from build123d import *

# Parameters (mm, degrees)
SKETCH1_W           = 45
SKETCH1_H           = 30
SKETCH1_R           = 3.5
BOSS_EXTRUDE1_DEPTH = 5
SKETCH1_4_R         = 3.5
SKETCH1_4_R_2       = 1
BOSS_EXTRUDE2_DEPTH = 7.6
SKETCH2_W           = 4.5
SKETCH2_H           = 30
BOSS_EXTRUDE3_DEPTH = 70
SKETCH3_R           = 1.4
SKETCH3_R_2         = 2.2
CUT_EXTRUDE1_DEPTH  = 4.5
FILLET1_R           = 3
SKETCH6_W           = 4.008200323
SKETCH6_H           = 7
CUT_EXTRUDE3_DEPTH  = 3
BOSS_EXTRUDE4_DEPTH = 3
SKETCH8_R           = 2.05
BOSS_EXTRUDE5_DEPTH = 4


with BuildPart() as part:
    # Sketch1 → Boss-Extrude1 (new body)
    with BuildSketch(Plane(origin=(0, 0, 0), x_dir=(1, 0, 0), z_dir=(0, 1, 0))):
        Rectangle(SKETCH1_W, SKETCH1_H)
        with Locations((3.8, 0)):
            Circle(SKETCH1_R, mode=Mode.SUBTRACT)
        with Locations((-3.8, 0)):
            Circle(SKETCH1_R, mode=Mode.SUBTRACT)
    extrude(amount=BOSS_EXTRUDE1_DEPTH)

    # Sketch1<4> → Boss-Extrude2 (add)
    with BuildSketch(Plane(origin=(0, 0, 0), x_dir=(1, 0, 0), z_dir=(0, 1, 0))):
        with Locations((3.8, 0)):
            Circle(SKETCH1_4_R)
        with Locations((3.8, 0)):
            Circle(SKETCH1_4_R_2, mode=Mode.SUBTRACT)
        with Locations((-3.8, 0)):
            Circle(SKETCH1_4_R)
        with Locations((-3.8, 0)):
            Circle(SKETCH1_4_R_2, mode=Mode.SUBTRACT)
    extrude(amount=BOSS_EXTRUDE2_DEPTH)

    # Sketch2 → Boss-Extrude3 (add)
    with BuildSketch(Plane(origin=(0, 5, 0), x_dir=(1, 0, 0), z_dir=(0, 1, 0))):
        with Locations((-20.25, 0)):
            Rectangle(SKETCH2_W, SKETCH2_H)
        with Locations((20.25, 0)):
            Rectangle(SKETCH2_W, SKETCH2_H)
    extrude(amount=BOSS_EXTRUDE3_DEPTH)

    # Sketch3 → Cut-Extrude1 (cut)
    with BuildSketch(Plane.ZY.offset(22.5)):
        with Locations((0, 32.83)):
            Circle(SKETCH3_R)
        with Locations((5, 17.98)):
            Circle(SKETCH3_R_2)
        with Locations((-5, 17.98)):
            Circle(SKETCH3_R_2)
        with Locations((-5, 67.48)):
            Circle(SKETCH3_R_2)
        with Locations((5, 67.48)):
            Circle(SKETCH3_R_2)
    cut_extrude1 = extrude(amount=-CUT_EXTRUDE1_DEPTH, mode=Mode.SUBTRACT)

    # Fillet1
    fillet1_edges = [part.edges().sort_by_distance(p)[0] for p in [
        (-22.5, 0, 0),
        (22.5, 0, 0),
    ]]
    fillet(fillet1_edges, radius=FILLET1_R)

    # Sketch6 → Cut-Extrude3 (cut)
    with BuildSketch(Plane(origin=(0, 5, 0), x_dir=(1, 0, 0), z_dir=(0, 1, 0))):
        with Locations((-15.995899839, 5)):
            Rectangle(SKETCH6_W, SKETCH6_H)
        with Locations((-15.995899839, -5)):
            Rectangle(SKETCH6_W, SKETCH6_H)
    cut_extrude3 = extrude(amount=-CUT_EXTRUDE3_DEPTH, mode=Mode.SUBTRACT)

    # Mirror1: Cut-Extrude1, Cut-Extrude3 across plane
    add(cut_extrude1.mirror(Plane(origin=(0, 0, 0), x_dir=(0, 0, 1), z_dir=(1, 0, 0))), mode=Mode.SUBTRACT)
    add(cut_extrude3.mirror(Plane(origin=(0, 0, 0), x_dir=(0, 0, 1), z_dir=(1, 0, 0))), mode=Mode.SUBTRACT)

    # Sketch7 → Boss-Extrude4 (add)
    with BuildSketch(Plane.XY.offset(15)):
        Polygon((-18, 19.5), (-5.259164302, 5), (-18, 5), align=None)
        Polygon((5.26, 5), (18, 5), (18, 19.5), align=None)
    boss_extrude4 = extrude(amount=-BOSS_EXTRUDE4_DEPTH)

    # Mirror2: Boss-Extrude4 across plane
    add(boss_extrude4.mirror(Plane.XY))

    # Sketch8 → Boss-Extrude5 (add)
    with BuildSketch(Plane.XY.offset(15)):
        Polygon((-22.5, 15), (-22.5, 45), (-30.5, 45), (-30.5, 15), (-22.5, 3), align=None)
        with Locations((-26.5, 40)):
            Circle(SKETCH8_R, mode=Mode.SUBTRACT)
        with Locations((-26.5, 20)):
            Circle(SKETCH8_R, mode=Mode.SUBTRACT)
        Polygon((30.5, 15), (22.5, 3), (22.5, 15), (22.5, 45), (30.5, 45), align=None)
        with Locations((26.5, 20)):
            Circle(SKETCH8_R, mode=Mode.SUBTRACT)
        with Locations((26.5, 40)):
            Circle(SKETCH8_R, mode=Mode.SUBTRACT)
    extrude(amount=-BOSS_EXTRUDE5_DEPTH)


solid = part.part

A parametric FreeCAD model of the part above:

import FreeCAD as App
import Part
import Sketcher


def edges_at(feature, points):
    """Names of the edges that pass closest to the given points."""
    edges = feature.Shape.Edges
    near = lambda p: min(range(len(edges)), key=lambda i: edges[i].distToShape(Part.Vertex(*p))[0])
    return sorted({f"Edge{near(p) + 1}" for p in points})

doc = App.newDocument("Part")
params = doc.addObject("Spreadsheet::Sheet", "Params")
for row, (alias, value) in enumerate([
    ("sketch1_diameter", "7 mm"),
    ("sketch1_width", "45 mm"),
    ("sketch1_height", "30 mm"),
    ("pad1_length", "5 mm"),
    ("sketch2_diameter", "7 mm"),
    ("sketch2_diameter2", "2 mm"),
    ("pad2_length", "7.6 mm"),
    ("sketch3_height", "30 mm"),
    ("sketch3_width", "4.5 mm"),
    ("pad3_length", "70 mm"),
    ("sketch4_diameter", "2.8 mm"),
    ("sketch4_diameter2", "4.4 mm"),
    ("pocket1_length", "4.5 mm"),
    ("fillet_radius", "3 mm"),
    ("sketch5_height", "7 mm"),
    ("pocket2_length", "3 mm"),
    ("sketch6_height", "14.5 mm"),
    ("sketch6_width", "12.74 mm"),
    ("pad4_length", "3 mm"),
    ("sketch7_diameter", "4.1 mm"),
    ("sketch7_width", "8 mm"),
    ("sketch7_height", "30 mm"),
    ("sketch7_height2", "42 mm"),
    ("pad5_length", "4 mm"),
], start=1):
    params.set(f"A{row}", alias)
    params.set(f"B{row}", "=" + value)
    params.setAlias(f"B{row}", alias)

body = doc.addObject("PartDesign::Body", "Body")

# Sketch on XZ plane
sketch1 = doc.addObject("Sketcher::SketchObject", "Sketch")
body.addObject(sketch1)
sketch1.AttachmentSupport = (doc.XZ_Plane, [""])
sketch1.MapMode = "FlatFace"
sketch1.addGeometry(Part.LineSegment(App.Vector(-22.5, -15, 0), App.Vector(-22.5, 15, 0)), False)
sketch1.addGeometry(Part.LineSegment(App.Vector(-22.5, 15, 0), App.Vector(22.5, 15, 0)), False)
sketch1.addGeometry(Part.LineSegment(App.Vector(22.5, 15, 0), App.Vector(22.5, -15, 0)), False)
sketch1.addGeometry(Part.LineSegment(App.Vector(22.5, -15, 0), App.Vector(-22.5, -15, 0)), False)
sketch1.addGeometry(Part.Circle(App.Vector(-3.8, 0, 0), App.Vector(0, 0, 1), 3.5), False)
sketch1.addGeometry(Part.Circle(App.Vector(3.8, 0, 0), App.Vector(0, 0, 1), 3.5), False)
sketch1.addConstraint(Sketcher.Constraint("Coincident", 0, 2, 1, 1))
sketch1.addConstraint(Sketcher.Constraint("Coincident", 1, 2, 2, 1))
sketch1.addConstraint(Sketcher.Constraint("Coincident", 2, 2, 3, 1))
sketch1.addConstraint(Sketcher.Constraint("Coincident", 3, 2, 0, 1))
sketch1.addConstraint(Sketcher.Constraint("Vertical", 0))
sketch1.addConstraint(Sketcher.Constraint("Horizontal", 1))
sketch1.addConstraint(Sketcher.Constraint("Vertical", 2))
sketch1.addConstraint(Sketcher.Constraint("Horizontal", 3))
sketch1.addConstraint(Sketcher.Constraint("Equal", 4, 5))
sketch1.addConstraint(Sketcher.Constraint("Symmetric", 4, 3, 5, 3, -1, 1))
sketch1.addConstraint(Sketcher.Constraint("Symmetric", 0, 2, 2, 2, -1, 1))
sketch1.addConstraint(Sketcher.Constraint("PointOnObject", 4, 3, -1))
sketch1.addConstraint(Sketcher.Constraint("Diameter", 4, 7.0))
sketch1.addConstraint(Sketcher.Constraint("DistanceX", 1, 1, 1, 2, 45.0))
sketch1.addConstraint(Sketcher.Constraint("DistanceY", 0, 1, 0, 2, 30.0))
sketch1.addConstraint(Sketcher.Constraint("DistanceX", 4, 3, -1, 1, 3.8))
sketch1.setExpression("Constraints[12]", "Params.sketch1_diameter")
sketch1.setExpression("Constraints[13]", "Params.sketch1_width")
sketch1.setExpression("Constraints[14]", "Params.sketch1_height")
pad1 = doc.addObject("PartDesign::Pad", "Pad")
body.addObject(pad1)
pad1.Profile = sketch1
pad1.setExpression("Length", "Params.pad1_length")
pad1.Reversed = True

# Sketch on XZ plane
sketch2 = doc.addObject("Sketcher::SketchObject", "Sketch001")
body.addObject(sketch2)
sketch2.AttachmentSupport = (doc.XZ_Plane, [""])
sketch2.MapMode = "FlatFace"
sketch2.addGeometry(Part.Circle(App.Vector(3.8, 0, 0), App.Vector(0, 0, 1), 3.5), False)
sketch2.addGeometry(Part.Circle(App.Vector(3.8, 0, 0), App.Vector(0, 0, 1), 1), False)
sketch2.addGeometry(Part.Circle(App.Vector(-3.8, 0, 0), App.Vector(0, 0, 1), 3.5), False)
sketch2.addGeometry(Part.Circle(App.Vector(-3.8, 0, 0), App.Vector(0, 0, 1), 1), False)
sketch2.addConstraint(Sketcher.Constraint("Coincident", 1, 3, 0, 3))
sketch2.addConstraint(Sketcher.Constraint("Coincident", 3, 3, 2, 3))
sketch2.addConstraint(Sketcher.Constraint("Equal", 0, 2))
sketch2.addConstraint(Sketcher.Constraint("Equal", 1, 3))
sketch2.addConstraint(Sketcher.Constraint("Symmetric", 0, 3, 2, 3, -1, 1))
sketch2.addConstraint(Sketcher.Constraint("PointOnObject", 0, 3, -1))
sketch2.addConstraint(Sketcher.Constraint("Diameter", 0, 7.0))
sketch2.addConstraint(Sketcher.Constraint("Diameter", 1, 2.0))
sketch2.addConstraint(Sketcher.Constraint("DistanceX", -1, 1, 0, 3, 3.8))
sketch2.setExpression("Constraints[6]", "Params.sketch2_diameter")
sketch2.setExpression("Constraints[7]", "Params.sketch2_diameter2")
pad2 = doc.addObject("PartDesign::Pad", "Pad001")
body.addObject(pad2)
pad2.Profile = sketch2
pad2.setExpression("Length", "Params.pad2_length")
pad2.Reversed = True

# Sketch on XZ plane
sketch3 = doc.addObject("Sketcher::SketchObject", "Sketch002")
body.addObject(sketch3)
sketch3.AttachmentSupport = (doc.XZ_Plane, [""])
sketch3.MapMode = "FlatFace"
sketch3.AttachmentOffset = App.Placement(App.Vector(0, 0, -5), App.Rotation())
sketch3.addGeometry(Part.LineSegment(App.Vector(-22.5, -15, 0), App.Vector(-22.5, 15, 0)), False)
sketch3.addGeometry(Part.LineSegment(App.Vector(-22.5, 15, 0), App.Vector(-18, 15, 0)), False)
sketch3.addGeometry(Part.LineSegment(App.Vector(-18, 15, 0), App.Vector(-18, -15, 0)), False)
sketch3.addGeometry(Part.LineSegment(App.Vector(-18, -15, 0), App.Vector(-22.5, -15, 0)), False)
sketch3.addGeometry(Part.LineSegment(App.Vector(18, -15, 0), App.Vector(18, 15, 0)), False)
sketch3.addGeometry(Part.LineSegment(App.Vector(18, 15, 0), App.Vector(22.5, 15, 0)), False)
sketch3.addGeometry(Part.LineSegment(App.Vector(22.5, 15, 0), App.Vector(22.5, -15, 0)), False)
sketch3.addGeometry(Part.LineSegment(App.Vector(22.5, -15, 0), App.Vector(18, -15, 0)), False)
sketch3.addConstraint(Sketcher.Constraint("Coincident", 0, 2, 1, 1))
sketch3.addConstraint(Sketcher.Constraint("Coincident", 1, 2, 2, 1))
sketch3.addConstraint(Sketcher.Constraint("Coincident", 2, 2, 3, 1))
sketch3.addConstraint(Sketcher.Constraint("Coincident", 3, 2, 0, 1))
sketch3.addConstraint(Sketcher.Constraint("Coincident", 4, 2, 5, 1))
sketch3.addConstraint(Sketcher.Constraint("Coincident", 5, 2, 6, 1))
sketch3.addConstraint(Sketcher.Constraint("Coincident", 6, 2, 7, 1))
sketch3.addConstraint(Sketcher.Constraint("Coincident", 7, 2, 4, 1))
sketch3.addConstraint(Sketcher.Constraint("Vertical", 0))
sketch3.addConstraint(Sketcher.Constraint("Horizontal", 1))
sketch3.addConstraint(Sketcher.Constraint("Vertical", 2))
sketch3.addConstraint(Sketcher.Constraint("Horizontal", 3))
sketch3.addConstraint(Sketcher.Constraint("Vertical", 4))
sketch3.addConstraint(Sketcher.Constraint("Horizontal", 5))
sketch3.addConstraint(Sketcher.Constraint("Vertical", 6))
sketch3.addConstraint(Sketcher.Constraint("Horizontal", 7))
sketch3.addConstraint(Sketcher.Constraint("Symmetric", 2, 2, 4, 2, -1, 1))
sketch3.addConstraint(Sketcher.Constraint("Symmetric", 0, 2, 6, 2, -1, 1))
sketch3.addConstraint(Sketcher.Constraint("Horizontal", 1, 2, 4, 2))
sketch3.addConstraint(Sketcher.Constraint("DistanceY", 0, 1, 0, 2, 30.0))
sketch3.addConstraint(Sketcher.Constraint("DistanceX", 1, 1, 1, 2, 4.5))
sketch3.addConstraint(Sketcher.Constraint("DistanceX", 1, 2, -1, 1, 18.0))
sketch3.setExpression("Constraints[19]", "Params.sketch3_height")
sketch3.setExpression("Constraints[20]", "Params.sketch3_width")
pad3 = doc.addObject("PartDesign::Pad", "Pad002")
body.addObject(pad3)
pad3.Profile = sketch3
pad3.setExpression("Length", "Params.pad3_length")
pad3.Reversed = True

# Sketch on YZ plane
sketch4 = doc.addObject("Sketcher::SketchObject", "Sketch003")
body.addObject(sketch4)
sketch4.AttachmentSupport = (doc.YZ_Plane, [""])
sketch4.MapMode = "FlatFace"
sketch4.AttachmentOffset = App.Placement(App.Vector(0, 0, -22.5), App.Rotation())
sketch4.addGeometry(Part.Circle(App.Vector(32.8, 0, 0), App.Vector(0, 0, 1), 1.4), False)
sketch4.addGeometry(Part.Circle(App.Vector(18, 5, 0), App.Vector(0, 0, 1), 2.2), False)
sketch4.addGeometry(Part.Circle(App.Vector(18, -5, 0), App.Vector(0, 0, 1), 2.2), False)
sketch4.addGeometry(Part.Circle(App.Vector(67.5, -5, 0), App.Vector(0, 0, 1), 2.2), False)
sketch4.addGeometry(Part.Circle(App.Vector(67.5, 5, 0), App.Vector(0, 0, 1), 2.2), False)
sketch4.addConstraint(Sketcher.Constraint("Equal", 1, 2))
sketch4.addConstraint(Sketcher.Constraint("Equal", 2, 3))
sketch4.addConstraint(Sketcher.Constraint("Equal", 3, 4))
sketch4.addConstraint(Sketcher.Constraint("Symmetric", 1, 3, 2, 3, -1))
sketch4.addConstraint(Sketcher.Constraint("Symmetric", 3, 3, 4, 3, -1))
sketch4.addConstraint(Sketcher.Constraint("PointOnObject", 0, 3, -1))
sketch4.addConstraint(Sketcher.Constraint("Horizontal", 2, 3, 3, 3))
sketch4.addConstraint(Sketcher.Constraint("Diameter", 0, 2.8))
sketch4.addConstraint(Sketcher.Constraint("Diameter", 1, 4.4))
sketch4.addConstraint(Sketcher.Constraint("DistanceY", -1, 1, 1, 3, 5.0))
sketch4.addConstraint(Sketcher.Constraint("DistanceX", 2, 3, 3, 3, 49.5))
sketch4.addConstraint(Sketcher.Constraint("DistanceX", -1, 1, 0, 3, 32.83))
sketch4.addConstraint(Sketcher.Constraint("DistanceX", -1, 1, 1, 3, 17.98))
sketch4.setExpression("Constraints[7]", "Params.sketch4_diameter")
sketch4.setExpression("Constraints[8]", "Params.sketch4_diameter2")
pocket1 = doc.addObject("PartDesign::Pocket", "Pocket")
body.addObject(pocket1)
pocket1.Profile = sketch4
pocket1.setExpression("Length", "Params.pocket1_length")
pocket1.Reversed = True
doc.recompute()

fillet = doc.addObject("PartDesign::Fillet", "Fillet")
body.addObject(fillet)
fillet.Base = (pocket1, edges_at(pocket1, [(-22.5, 0, 0), (22.5, 0, 0)]))
fillet.setExpression("Radius", "Params.fillet_radius")

# Sketch on XZ plane
sketch5 = doc.addObject("Sketcher::SketchObject", "Sketch004")
body.addObject(sketch5)
sketch5.AttachmentSupport = (doc.XZ_Plane, [""])
sketch5.MapMode = "FlatFace"
sketch5.AttachmentOffset = App.Placement(App.Vector(0, 0, -5), App.Rotation())
sketch5.addGeometry(Part.LineSegment(App.Vector(-18, -8.5, 0), App.Vector(-18, -1.5, 0)), False)
sketch5.addGeometry(Part.LineSegment(App.Vector(-18, -1.5, 0), App.Vector(-14, -1.5, 0)), False)
sketch5.addGeometry(Part.LineSegment(App.Vector(-14, -1.5, 0), App.Vector(-14, -8.5, 0)), False)
sketch5.addGeometry(Part.LineSegment(App.Vector(-14, -8.5, 0), App.Vector(-18, -8.5, 0)), False)
sketch5.addGeometry(Part.LineSegment(App.Vector(-18, 1.5, 0), App.Vector(-18, 8.5, 0)), False)
sketch5.addGeometry(Part.LineSegment(App.Vector(-18, 8.5, 0), App.Vector(-14, 8.5, 0)), False)
sketch5.addGeometry(Part.LineSegment(App.Vector(-14, 8.5, 0), App.Vector(-14, 1.5, 0)), False)
sketch5.addGeometry(Part.LineSegment(App.Vector(-14, 1.5, 0), App.Vector(-18, 1.5, 0)), False)
sketch5.addConstraint(Sketcher.Constraint("Coincident", 0, 2, 1, 1))
sketch5.addConstraint(Sketcher.Constraint("Coincident", 1, 2, 2, 1))
sketch5.addConstraint(Sketcher.Constraint("Coincident", 2, 2, 3, 1))
sketch5.addConstraint(Sketcher.Constraint("Coincident", 3, 2, 0, 1))
sketch5.addConstraint(Sketcher.Constraint("Coincident", 4, 2, 5, 1))
sketch5.addConstraint(Sketcher.Constraint("Coincident", 5, 2, 6, 1))
sketch5.addConstraint(Sketcher.Constraint("Coincident", 6, 2, 7, 1))
sketch5.addConstraint(Sketcher.Constraint("Coincident", 7, 2, 4, 1))
sketch5.addConstraint(Sketcher.Constraint("Vertical", 0))
sketch5.addConstraint(Sketcher.Constraint("Horizontal", 1))
sketch5.addConstraint(Sketcher.Constraint("Vertical", 2))
sketch5.addConstraint(Sketcher.Constraint("Horizontal", 3))
sketch5.addConstraint(Sketcher.Constraint("Vertical", 4))
sketch5.addConstraint(Sketcher.Constraint("Horizontal", 5))
sketch5.addConstraint(Sketcher.Constraint("Vertical", 6))
sketch5.addConstraint(Sketcher.Constraint("Horizontal", 7))
sketch5.addConstraint(Sketcher.Constraint("Symmetric", 3, 2, 4, 2, -1))
sketch5.addConstraint(Sketcher.Constraint("Symmetric", 1, 2, 6, 2, -1))
sketch5.addConstraint(Sketcher.Constraint("DistanceY", 0, 1, 0, 2, 7.0))
sketch5.addConstraint(Sketcher.Constraint("DistanceX", 0, 2, -1, 1, 18.0))
sketch5.addConstraint(Sketcher.Constraint("DistanceY", 0, 2, 4, 2, 10.0))
sketch5.addConstraint(Sketcher.Constraint("DistanceX", 1, 1, 1, 2, 4.0082))
sketch5.setExpression("Constraints[18]", "Params.sketch5_height")
pocket2 = doc.addObject("PartDesign::Pocket", "Pocket001")
body.addObject(pocket2)
pocket2.Profile = sketch5
pocket2.setExpression("Length", "Params.pocket2_length")
pocket2.Reversed = True
doc.recompute()

mirrored = doc.addObject("PartDesign::Mirrored", "Mirrored")
body.addObject(mirrored)
mirrored.Originals = [pocket1, pocket2]
mirrored.MirrorPlane = (doc.YZ_Plane, [""])
body.Tip = mirrored

# Sketch on XY plane
sketch6 = doc.addObject("Sketcher::SketchObject", "Sketch005")
body.addObject(sketch6)
sketch6.AttachmentSupport = (doc.XY_Plane, [""])
sketch6.MapMode = "FlatFace"
sketch6.AttachmentOffset = App.Placement(App.Vector(0, 0, 15), App.Rotation())
sketch6.addGeometry(Part.LineSegment(App.Vector(-5, 5, 0), App.Vector(-18, 20, 0)), False)
sketch6.addGeometry(Part.LineSegment(App.Vector(-18, 20, 0), App.Vector(-18, 5, 0)), False)
sketch6.addGeometry(Part.LineSegment(App.Vector(-18, 5, 0), App.Vector(-5, 5, 0)), False)
sketch6.addGeometry(Part.LineSegment(App.Vector(5, 5, 0), App.Vector(18, 5, 0)), False)
sketch6.addGeometry(Part.LineSegment(App.Vector(18, 5, 0), App.Vector(18, 20, 0)), False)
sketch6.addGeometry(Part.LineSegment(App.Vector(18, 20, 0), App.Vector(5, 5, 0)), False)
sketch6.addConstraint(Sketcher.Constraint("Coincident", 0, 2, 1, 1))
sketch6.addConstraint(Sketcher.Constraint("Coincident", 1, 2, 2, 1))
sketch6.addConstraint(Sketcher.Constraint("Coincident", 2, 2, 0, 1))
sketch6.addConstraint(Sketcher.Constraint("Coincident", 3, 2, 4, 1))
sketch6.addConstraint(Sketcher.Constraint("Coincident", 4, 2, 5, 1))
sketch6.addConstraint(Sketcher.Constraint("Coincident", 5, 2, 3, 1))
sketch6.addConstraint(Sketcher.Constraint("Vertical", 1))
sketch6.addConstraint(Sketcher.Constraint("Horizontal", 2))
sketch6.addConstraint(Sketcher.Constraint("Horizontal", 3))
sketch6.addConstraint(Sketcher.Constraint("Vertical", 4))
sketch6.addConstraint(Sketcher.Constraint("Symmetric", 1, 2, 3, 2, -2))
sketch6.addConstraint(Sketcher.Constraint("Horizontal", 0, 2, 4, 2))
sketch6.addConstraint(Sketcher.Constraint("DistanceY", 1, 2, 1, 1, 14.5))
sketch6.addConstraint(Sketcher.Constraint("DistanceX", 0, 2, -1, 1, 18.0))
sketch6.addConstraint(Sketcher.Constraint("DistanceY", -1, 1, 1, 2, 5.0))
sketch6.addConstraint(Sketcher.Constraint("DistanceX", 3, 1, 3, 2, 12.74))
sketch6.addConstraint(Sketcher.Constraint("DistanceX", 2, 1, 2, 2, 12.740836))
sketch6.setExpression("Constraints[12]", "Params.sketch6_height")
sketch6.setExpression("Constraints[15]", "Params.sketch6_width")
pad4 = doc.addObject("PartDesign::Pad", "Pad003")
body.addObject(pad4)
pad4.Profile = sketch6
pad4.setExpression("Length", "Params.pad4_length")
pad4.Reversed = True
doc.recompute()

mirrored2 = doc.addObject("PartDesign::Mirrored", "Mirrored001")
body.addObject(mirrored2)
mirrored2.Originals = [pad4]
mirrored2.MirrorPlane = (doc.XY_Plane, [""])
body.Tip = mirrored2

# Sketch on XY plane
sketch7 = doc.addObject("Sketcher::SketchObject", "Sketch006")
body.addObject(sketch7)
sketch7.AttachmentSupport = (doc.XY_Plane, [""])
sketch7.MapMode = "FlatFace"
sketch7.AttachmentOffset = App.Placement(App.Vector(0, 0, 15), App.Rotation())
sketch7.addGeometry(Part.LineSegment(App.Vector(-22.5, 45, 0), App.Vector(-30.5, 45, 0)), False)
sketch7.addGeometry(Part.LineSegment(App.Vector(-30.5, 45, 0), App.Vector(-30.5, 15, 0)), False)
sketch7.addGeometry(Part.LineSegment(App.Vector(-30.5, 15, 0), App.Vector(-22.5, 3, 0)), False)
sketch7.addGeometry(Part.LineSegment(App.Vector(-22.5, 3, 0), App.Vector(-22.5, 45, 0)), False)
sketch7.addGeometry(Part.Circle(App.Vector(-26.5, 20, 0), App.Vector(0, 0, 1), 2), False)
sketch7.addGeometry(Part.Circle(App.Vector(-26.5, 40, 0), App.Vector(0, 0, 1), 2), False)
sketch7.addGeometry(Part.LineSegment(App.Vector(22.5, 3, 0), App.Vector(30.5, 15, 0)), False)
sketch7.addGeometry(Part.LineSegment(App.Vector(30.5, 15, 0), App.Vector(30.5, 45, 0)), False)
sketch7.addGeometry(Part.LineSegment(App.Vector(30.5, 45, 0), App.Vector(22.5, 45, 0)), False)
sketch7.addGeometry(Part.LineSegment(App.Vector(22.5, 45, 0), App.Vector(22.5, 3, 0)), False)
sketch7.addGeometry(Part.Circle(App.Vector(26.5, 20, 0), App.Vector(0, 0, 1), 2), False)
sketch7.addGeometry(Part.Circle(App.Vector(26.5, 40, 0), App.Vector(0, 0, 1), 2), False)
sketch7.addConstraint(Sketcher.Constraint("Coincident", 0, 2, 1, 1))
sketch7.addConstraint(Sketcher.Constraint("Coincident", 1, 2, 2, 1))
sketch7.addConstraint(Sketcher.Constraint("Coincident", 2, 2, 3, 1))
sketch7.addConstraint(Sketcher.Constraint("Coincident", 3, 2, 0, 1))
sketch7.addConstraint(Sketcher.Constraint("Coincident", 6, 2, 7, 1))
sketch7.addConstraint(Sketcher.Constraint("Coincident", 7, 2, 8, 1))
sketch7.addConstraint(Sketcher.Constraint("Coincident", 8, 2, 9, 1))
sketch7.addConstraint(Sketcher.Constraint("Coincident", 9, 2, 6, 1))
sketch7.addConstraint(Sketcher.Constraint("Horizontal", 0))
sketch7.addConstraint(Sketcher.Constraint("Vertical", 1))
sketch7.addConstraint(Sketcher.Constraint("Vertical", 3))
sketch7.addConstraint(Sketcher.Constraint("Vertical", 7))
sketch7.addConstraint(Sketcher.Constraint("Horizontal", 8))
sketch7.addConstraint(Sketcher.Constraint("Vertical", 9))
sketch7.addConstraint(Sketcher.Constraint("Equal", 4, 5))
sketch7.addConstraint(Sketcher.Constraint("Equal", 5, 10))
sketch7.addConstraint(Sketcher.Constraint("Equal", 10, 11))
sketch7.addConstraint(Sketcher.Constraint("Symmetric", 4, 3, 10, 3, -2))
sketch7.addConstraint(Sketcher.Constraint("Symmetric", 5, 3, 11, 3, -2))
sketch7.addConstraint(Sketcher.Constraint("Symmetric", 1, 2, 6, 2, -2))
sketch7.addConstraint(Sketcher.Constraint("Symmetric", 3, 2, 8, 2, -2))
sketch7.addConstraint(Sketcher.Constraint("Horizontal", 2, 2, 9, 2))
sketch7.addConstraint(Sketcher.Constraint("Vertical", 4, 3, 5, 3))
sketch7.addConstraint(Sketcher.Constraint("Diameter", 4, 4.1))
sketch7.addConstraint(Sketcher.Constraint("DistanceX", 0, 2, 0, 1, 8.0))
sketch7.addConstraint(Sketcher.Constraint("DistanceY", 1, 2, 1, 1, 30.0))
sketch7.addConstraint(Sketcher.Constraint("DistanceY", 3, 1, 3, 2, 42.0))
sketch7.addConstraint(Sketcher.Constraint("DistanceY", -1, 1, 4, 3, 20.0))
sketch7.addConstraint(Sketcher.Constraint("DistanceY", -1, 1, 5, 3, 40.0))
sketch7.addConstraint(Sketcher.Constraint("DistanceY", -1, 1, 0, 2, 45.0))
sketch7.addConstraint(Sketcher.Constraint("DistanceX", 4, 3, 10, 3, 53.0))
sketch7.addConstraint(Sketcher.Constraint("DistanceX", 0, 2, 5, 3, 4.0))
sketch7.setExpression("Constraints[23]", "Params.sketch7_diameter")
sketch7.setExpression("Constraints[24]", "Params.sketch7_width")
sketch7.setExpression("Constraints[25]", "Params.sketch7_height")
sketch7.setExpression("Constraints[26]", "Params.sketch7_height2")
pad5 = doc.addObject("PartDesign::Pad", "Pad004")
body.addObject(pad5)
pad5.Profile = sketch7
pad5.setExpression("Length", "Params.pad5_length")
pad5.Reversed = True

doc.recompute()
